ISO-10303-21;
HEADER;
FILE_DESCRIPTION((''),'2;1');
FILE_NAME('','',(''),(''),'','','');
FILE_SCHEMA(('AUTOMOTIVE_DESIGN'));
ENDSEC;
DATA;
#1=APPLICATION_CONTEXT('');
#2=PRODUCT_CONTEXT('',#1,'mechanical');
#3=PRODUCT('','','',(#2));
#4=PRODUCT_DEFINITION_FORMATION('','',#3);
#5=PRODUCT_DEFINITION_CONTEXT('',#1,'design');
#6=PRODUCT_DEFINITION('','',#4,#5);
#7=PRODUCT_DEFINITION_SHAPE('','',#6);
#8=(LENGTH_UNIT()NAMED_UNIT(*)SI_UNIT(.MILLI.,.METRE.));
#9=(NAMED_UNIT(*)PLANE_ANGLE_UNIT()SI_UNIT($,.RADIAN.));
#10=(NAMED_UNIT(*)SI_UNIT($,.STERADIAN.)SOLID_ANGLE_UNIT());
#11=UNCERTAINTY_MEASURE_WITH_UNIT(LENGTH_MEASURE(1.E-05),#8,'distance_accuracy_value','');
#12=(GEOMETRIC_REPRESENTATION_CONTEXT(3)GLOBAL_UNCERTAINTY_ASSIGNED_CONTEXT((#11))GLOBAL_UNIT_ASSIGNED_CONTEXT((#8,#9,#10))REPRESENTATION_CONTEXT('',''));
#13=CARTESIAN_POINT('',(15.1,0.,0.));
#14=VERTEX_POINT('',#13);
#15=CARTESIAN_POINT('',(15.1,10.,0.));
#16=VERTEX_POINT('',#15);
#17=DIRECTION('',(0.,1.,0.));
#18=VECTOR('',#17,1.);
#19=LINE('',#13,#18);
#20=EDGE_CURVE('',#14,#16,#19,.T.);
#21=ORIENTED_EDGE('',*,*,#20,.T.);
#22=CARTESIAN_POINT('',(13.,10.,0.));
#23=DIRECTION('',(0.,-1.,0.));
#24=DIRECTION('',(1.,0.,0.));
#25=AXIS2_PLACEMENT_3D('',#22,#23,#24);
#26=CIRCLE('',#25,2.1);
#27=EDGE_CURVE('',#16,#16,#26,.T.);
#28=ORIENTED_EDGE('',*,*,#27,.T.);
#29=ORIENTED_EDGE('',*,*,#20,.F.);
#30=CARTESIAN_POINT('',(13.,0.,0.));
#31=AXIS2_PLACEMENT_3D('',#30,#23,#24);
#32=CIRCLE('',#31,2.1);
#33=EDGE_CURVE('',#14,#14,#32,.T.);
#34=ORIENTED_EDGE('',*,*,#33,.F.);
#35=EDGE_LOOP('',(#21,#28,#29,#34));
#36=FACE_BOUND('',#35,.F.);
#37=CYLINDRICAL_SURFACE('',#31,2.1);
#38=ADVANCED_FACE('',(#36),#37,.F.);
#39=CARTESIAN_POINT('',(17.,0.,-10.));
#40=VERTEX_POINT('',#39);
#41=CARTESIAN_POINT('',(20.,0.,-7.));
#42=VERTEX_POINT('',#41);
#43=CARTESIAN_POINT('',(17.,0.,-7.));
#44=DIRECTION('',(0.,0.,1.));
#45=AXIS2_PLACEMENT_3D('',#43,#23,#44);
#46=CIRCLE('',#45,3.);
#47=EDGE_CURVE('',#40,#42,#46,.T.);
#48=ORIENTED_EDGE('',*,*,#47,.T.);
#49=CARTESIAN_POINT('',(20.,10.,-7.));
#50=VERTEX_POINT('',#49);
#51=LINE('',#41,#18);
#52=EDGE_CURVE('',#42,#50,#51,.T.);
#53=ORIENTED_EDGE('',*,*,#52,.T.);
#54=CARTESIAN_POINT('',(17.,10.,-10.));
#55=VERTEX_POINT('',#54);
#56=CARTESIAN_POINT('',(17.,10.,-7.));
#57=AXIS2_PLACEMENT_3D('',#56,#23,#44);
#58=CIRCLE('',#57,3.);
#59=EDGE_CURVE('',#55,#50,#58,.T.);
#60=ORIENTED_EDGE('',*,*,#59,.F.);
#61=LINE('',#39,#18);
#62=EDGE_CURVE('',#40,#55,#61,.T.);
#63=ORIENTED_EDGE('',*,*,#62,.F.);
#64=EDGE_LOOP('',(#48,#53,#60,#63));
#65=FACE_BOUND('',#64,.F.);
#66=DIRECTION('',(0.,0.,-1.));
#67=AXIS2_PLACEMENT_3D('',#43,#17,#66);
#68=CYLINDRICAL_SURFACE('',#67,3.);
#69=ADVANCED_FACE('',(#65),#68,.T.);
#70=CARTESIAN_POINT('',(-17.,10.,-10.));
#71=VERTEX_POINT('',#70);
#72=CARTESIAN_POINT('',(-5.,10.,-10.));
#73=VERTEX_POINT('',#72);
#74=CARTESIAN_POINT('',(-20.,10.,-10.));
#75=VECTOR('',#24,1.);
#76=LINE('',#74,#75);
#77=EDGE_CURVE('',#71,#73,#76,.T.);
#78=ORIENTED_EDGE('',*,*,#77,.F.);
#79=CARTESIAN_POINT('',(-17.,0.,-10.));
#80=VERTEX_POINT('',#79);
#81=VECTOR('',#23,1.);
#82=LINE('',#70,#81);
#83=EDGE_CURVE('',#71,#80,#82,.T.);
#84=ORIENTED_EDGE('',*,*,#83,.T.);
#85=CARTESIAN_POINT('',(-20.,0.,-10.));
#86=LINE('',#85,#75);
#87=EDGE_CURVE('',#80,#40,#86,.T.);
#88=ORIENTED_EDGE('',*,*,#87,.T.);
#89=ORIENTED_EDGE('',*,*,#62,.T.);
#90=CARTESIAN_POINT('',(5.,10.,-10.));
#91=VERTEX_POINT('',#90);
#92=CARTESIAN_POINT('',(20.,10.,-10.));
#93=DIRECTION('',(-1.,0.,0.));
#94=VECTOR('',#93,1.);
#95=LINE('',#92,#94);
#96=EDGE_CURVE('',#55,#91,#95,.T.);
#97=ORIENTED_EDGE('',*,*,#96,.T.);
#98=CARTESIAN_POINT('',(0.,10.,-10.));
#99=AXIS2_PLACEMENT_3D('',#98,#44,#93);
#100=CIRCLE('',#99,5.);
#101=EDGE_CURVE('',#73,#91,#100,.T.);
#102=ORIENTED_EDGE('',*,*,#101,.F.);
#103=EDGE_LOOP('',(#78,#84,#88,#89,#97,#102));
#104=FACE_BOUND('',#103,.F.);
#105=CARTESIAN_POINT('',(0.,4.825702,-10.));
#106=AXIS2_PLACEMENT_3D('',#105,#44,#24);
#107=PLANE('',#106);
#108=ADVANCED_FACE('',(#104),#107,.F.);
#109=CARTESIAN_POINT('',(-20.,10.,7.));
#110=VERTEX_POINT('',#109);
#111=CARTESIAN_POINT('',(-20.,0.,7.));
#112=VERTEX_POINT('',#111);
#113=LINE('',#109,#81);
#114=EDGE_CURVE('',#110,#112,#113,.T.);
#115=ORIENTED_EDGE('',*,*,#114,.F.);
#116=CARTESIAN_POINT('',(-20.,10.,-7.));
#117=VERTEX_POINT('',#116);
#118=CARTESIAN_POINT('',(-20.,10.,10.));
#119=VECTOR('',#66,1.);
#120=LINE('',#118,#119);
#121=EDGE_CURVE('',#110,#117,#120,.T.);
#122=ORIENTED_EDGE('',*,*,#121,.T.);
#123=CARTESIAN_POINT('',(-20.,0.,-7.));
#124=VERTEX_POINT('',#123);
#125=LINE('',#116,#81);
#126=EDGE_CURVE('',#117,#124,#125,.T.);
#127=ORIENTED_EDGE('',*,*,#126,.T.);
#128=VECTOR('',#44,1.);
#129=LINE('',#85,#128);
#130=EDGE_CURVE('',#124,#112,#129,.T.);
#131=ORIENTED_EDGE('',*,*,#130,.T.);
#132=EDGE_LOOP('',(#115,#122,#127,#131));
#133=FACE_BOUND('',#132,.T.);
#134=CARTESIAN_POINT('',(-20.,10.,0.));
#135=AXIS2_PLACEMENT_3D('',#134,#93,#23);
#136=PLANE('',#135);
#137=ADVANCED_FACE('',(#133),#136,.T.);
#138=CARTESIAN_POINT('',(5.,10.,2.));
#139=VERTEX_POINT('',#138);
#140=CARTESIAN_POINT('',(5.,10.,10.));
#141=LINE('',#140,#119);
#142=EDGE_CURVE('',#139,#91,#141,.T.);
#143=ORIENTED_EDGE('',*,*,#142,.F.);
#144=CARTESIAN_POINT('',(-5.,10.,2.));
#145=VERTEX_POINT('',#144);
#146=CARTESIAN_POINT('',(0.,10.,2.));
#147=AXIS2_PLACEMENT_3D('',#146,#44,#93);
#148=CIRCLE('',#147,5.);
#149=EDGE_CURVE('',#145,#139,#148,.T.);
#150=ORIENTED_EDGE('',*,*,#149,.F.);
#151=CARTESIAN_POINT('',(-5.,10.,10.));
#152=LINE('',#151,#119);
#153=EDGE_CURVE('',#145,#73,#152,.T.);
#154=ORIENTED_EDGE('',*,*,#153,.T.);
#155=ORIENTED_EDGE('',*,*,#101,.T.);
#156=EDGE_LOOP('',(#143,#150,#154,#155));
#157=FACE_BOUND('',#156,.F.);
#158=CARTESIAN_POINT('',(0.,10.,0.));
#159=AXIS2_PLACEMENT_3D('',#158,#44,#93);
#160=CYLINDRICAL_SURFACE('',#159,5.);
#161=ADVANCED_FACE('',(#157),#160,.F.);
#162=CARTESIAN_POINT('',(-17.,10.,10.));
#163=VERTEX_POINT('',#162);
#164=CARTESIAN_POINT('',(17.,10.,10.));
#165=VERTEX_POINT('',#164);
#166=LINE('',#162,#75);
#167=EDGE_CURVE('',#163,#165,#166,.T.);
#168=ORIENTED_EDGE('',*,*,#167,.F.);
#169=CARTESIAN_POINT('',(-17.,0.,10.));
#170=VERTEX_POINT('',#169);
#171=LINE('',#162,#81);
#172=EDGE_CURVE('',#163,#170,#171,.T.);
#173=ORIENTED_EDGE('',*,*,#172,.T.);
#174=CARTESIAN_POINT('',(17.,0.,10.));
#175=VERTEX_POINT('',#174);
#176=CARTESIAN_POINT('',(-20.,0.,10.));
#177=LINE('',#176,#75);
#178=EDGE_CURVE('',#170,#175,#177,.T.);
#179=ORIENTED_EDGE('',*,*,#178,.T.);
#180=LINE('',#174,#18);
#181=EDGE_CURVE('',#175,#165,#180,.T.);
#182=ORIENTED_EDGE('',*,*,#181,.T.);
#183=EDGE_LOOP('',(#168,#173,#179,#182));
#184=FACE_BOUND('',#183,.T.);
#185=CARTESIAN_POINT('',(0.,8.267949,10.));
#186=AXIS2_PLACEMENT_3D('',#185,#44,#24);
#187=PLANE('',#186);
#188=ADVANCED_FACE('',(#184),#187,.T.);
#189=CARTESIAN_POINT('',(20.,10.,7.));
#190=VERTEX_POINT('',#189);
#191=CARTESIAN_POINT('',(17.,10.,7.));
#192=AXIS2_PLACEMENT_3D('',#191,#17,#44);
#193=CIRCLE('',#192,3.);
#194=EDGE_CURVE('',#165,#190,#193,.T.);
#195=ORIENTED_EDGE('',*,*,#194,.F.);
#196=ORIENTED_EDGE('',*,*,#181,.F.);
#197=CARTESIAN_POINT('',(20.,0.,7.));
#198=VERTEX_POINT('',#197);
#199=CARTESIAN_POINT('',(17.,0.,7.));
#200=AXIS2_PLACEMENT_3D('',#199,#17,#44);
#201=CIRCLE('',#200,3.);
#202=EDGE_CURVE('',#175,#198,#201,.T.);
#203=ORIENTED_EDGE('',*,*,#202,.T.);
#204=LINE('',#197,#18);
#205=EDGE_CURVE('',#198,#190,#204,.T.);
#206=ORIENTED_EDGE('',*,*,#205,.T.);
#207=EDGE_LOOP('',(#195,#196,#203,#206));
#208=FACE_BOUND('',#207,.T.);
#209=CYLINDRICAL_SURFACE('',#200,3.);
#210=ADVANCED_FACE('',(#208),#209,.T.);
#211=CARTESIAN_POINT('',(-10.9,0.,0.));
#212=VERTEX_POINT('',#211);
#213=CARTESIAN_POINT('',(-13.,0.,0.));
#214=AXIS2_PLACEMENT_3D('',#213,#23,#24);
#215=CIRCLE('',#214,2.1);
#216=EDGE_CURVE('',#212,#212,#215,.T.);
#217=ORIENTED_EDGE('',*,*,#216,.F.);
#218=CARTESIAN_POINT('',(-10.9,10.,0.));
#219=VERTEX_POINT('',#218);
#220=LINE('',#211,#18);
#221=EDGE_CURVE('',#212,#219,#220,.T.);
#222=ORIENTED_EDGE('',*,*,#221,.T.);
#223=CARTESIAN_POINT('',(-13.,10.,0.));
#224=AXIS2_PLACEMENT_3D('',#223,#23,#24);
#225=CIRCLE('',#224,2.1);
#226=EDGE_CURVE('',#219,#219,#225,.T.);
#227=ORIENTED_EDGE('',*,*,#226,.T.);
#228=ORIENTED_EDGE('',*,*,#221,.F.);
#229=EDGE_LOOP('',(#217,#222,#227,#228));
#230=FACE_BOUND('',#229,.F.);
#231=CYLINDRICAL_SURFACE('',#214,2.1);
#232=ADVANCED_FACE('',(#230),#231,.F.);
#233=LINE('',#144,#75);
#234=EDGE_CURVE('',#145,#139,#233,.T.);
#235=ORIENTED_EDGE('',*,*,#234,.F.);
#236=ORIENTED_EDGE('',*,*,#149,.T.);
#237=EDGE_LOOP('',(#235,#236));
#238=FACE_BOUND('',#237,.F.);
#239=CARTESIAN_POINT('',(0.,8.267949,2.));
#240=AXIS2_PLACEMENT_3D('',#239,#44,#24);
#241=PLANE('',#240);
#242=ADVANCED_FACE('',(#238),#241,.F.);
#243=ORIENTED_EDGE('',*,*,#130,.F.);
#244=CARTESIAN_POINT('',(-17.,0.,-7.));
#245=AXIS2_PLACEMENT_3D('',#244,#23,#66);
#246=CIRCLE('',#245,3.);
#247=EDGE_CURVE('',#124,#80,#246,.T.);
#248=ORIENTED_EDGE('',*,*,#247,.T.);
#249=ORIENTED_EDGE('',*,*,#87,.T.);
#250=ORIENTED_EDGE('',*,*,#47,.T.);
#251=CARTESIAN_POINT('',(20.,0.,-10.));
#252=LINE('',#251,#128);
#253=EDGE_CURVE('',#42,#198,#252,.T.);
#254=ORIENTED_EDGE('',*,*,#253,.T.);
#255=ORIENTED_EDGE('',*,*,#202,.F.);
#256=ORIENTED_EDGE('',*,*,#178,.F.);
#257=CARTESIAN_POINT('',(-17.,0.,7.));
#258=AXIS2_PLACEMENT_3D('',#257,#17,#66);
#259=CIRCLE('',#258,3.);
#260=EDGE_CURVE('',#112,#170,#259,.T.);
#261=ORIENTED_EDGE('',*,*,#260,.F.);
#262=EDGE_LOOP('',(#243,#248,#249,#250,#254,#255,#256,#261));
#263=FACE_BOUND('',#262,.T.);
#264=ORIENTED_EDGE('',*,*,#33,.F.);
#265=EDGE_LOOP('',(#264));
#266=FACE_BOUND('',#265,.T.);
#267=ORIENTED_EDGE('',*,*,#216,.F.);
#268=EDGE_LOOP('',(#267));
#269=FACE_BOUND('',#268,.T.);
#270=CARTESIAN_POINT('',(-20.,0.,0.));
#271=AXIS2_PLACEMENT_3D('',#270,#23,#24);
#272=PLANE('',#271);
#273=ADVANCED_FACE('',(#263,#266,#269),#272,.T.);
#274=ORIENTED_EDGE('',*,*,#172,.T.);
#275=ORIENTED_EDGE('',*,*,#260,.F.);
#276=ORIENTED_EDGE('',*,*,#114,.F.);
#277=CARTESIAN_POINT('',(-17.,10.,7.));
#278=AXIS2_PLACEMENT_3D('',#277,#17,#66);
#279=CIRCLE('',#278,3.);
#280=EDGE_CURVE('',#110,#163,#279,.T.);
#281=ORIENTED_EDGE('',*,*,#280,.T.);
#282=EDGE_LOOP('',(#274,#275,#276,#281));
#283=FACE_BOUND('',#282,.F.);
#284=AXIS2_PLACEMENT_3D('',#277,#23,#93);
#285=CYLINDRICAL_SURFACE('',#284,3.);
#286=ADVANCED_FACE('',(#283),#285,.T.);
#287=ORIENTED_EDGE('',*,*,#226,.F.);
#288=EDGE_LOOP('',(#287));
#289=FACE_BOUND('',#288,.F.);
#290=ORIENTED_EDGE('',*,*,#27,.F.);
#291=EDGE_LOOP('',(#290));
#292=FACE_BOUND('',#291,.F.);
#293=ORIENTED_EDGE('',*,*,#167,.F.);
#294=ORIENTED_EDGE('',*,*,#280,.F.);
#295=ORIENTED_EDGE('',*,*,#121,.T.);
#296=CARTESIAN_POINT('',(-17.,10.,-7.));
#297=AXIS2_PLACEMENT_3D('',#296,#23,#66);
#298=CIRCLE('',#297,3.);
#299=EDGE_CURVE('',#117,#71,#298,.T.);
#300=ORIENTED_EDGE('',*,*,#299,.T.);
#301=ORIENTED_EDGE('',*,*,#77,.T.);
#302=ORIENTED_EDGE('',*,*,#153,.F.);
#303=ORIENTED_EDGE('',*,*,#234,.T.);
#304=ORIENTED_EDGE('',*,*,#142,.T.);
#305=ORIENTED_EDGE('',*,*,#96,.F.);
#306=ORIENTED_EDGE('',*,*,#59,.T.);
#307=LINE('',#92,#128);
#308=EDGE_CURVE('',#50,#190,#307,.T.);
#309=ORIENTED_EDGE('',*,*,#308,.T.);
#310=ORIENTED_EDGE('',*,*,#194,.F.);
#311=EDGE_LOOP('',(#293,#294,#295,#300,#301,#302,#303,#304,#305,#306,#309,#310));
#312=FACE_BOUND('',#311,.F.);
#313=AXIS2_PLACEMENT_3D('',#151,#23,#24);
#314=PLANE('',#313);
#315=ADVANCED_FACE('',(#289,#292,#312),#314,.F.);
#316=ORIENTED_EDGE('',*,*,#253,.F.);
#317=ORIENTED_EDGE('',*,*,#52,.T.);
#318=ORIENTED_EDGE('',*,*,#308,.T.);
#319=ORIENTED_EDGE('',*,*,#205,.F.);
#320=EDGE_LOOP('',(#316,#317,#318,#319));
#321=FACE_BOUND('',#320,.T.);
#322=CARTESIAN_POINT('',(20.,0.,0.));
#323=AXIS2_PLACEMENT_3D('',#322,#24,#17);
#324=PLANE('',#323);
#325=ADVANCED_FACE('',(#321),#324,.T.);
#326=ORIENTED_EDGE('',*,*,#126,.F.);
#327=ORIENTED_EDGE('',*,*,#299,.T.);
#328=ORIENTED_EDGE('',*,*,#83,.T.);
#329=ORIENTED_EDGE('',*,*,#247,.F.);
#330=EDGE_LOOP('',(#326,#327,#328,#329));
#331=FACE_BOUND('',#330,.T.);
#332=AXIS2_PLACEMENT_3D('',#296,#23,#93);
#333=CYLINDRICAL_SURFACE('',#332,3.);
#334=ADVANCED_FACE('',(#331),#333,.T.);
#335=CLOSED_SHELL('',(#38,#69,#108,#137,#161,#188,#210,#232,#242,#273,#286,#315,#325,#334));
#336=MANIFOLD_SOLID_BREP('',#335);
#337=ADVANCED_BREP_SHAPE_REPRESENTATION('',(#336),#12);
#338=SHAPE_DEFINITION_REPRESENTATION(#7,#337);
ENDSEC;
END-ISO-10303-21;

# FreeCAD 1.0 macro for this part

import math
import FreeCAD as App
import Part
import Sketcher

V = App.Vector
Q = App.Units.Quantity


def edges_at(feature, points):
    """Names of the edges that pass closest to the given points."""
    edges = feature.Shape.Edges
    near = lambda p: min(range(len(edges)), key=lambda i: edges[i].distToShape(Part.Vertex(*p))[0])
    return sorted({f"Edge{near(p) + 1}" for p in points})

doc = App.newDocument("Part")
body = doc.addObject("PartDesign::Body", "Body")

sketch1 = body.newObject("Sketcher::SketchObject", "Sketch")
sketch1.AttachmentSupport = (doc.getObject("XY_Plane"), [""])
sketch1.MapMode = "FlatFace"
sketch1.addGeometry(Part.LineSegment(V(-20, 10, 0), V(-20, 0, 0)), False)
sketch1.addGeometry(Part.LineSegment(V(-20, 0, 0), V(20, 0, 0)), False)
sketch1.addGeometry(Part.LineSegment(V(20, 0, 0), V(20, 10, 0)), False)
sketch1.addGeometry(Part.LineSegment(V(20, 10, 0), V(5, 10, 0)), False)
sketch1.addGeometry(Part.ArcOfCircle(Part.Circle(V(0, 10, 0), V(0, 0, 1), 5), math.radians(180), math.radians(360)), False)
sketch1.addGeometry(Part.LineSegment(V(-5, 10, 0), V(-20, 10, 0)), False)
sketch1.addConstraint(Sketcher.Constraint("Coincident", 0, 2, 1, 1))
sketch1.addConstraint(Sketcher.Constraint("Coincident", 1, 2, 2, 1))
sketch1.addConstraint(Sketcher.Constraint("Coincident", 2, 2, 3, 1))
sketch1.addConstraint(Sketcher.Constraint("Coincident", 3, 2, 4, 2))
sketch1.addConstraint(Sketcher.Constraint("Coincident", 4, 1, 5, 1))
sketch1.addConstraint(Sketcher.Constraint("Coincident", 5, 2, 0, 1))
sketch1.addConstraint(Sketcher.Constraint("Vertical", 0))
sketch1.addConstraint(Sketcher.Constraint("Horizontal", 1))
sketch1.addConstraint(Sketcher.Constraint("Vertical", 2))
sketch1.addConstraint(Sketcher.Constraint("Horizontal", 3))
sketch1.addConstraint(Sketcher.Constraint("Horizontal", 5))
sketch1.addConstraint(Sketcher.Constraint("Symmetric", 0, 2, 1, 2, -1, 1))
sketch1.addConstraint(Sketcher.Constraint("Symmetric", 3, 2, 4, 1, -2))
sketch1.addConstraint(Sketcher.Constraint("Horizontal", 4, 3, 2, 2))
sketch1.addConstraint(Sketcher.Constraint("Radius", 4, Q("5 mm")))
sketch1.addConstraint(Sketcher.Constraint("DistanceX", 1, 1, 1, 2, Q("40 mm")))
sketch1.addConstraint(Sketcher.Constraint("DistanceY", 0, 2, 0, 1, Q("10 mm")))
pad1 = body.newObject("PartDesign::Pad", "Pad")
pad1.Profile = sketch1
pad1.Length = 20
pad1.Midplane = True

sketch2 = body.newObject("Sketcher::SketchObject", "Sketch001")
sketch2.AttachmentSupport = (doc.getObject("XZ_Plane"), [""])
sketch2.MapMode = "FlatFace"
sketch2.addGeometry(Part.Circle(V(-13, 0, 0), V(0, 0, 1), 2.1), False)
sketch2.addGeometry(Part.Circle(V(13, 0, 0), V(0, 0, 1), 2.1), False)
sketch2.addConstraint(Sketcher.Constraint("Equal", 0, 1))
sketch2.addConstraint(Sketcher.Constraint("Symmetric", 0, 3, 1, 3, -1, 1))
sketch2.addConstraint(Sketcher.Constraint("PointOnObject", 0, 3, -1))
sketch2.addConstraint(Sketcher.Constraint("Diameter", 0, Q("4.2 mm")))
sketch2.addConstraint(Sketcher.Constraint("DistanceX", 0, 3, -1, 1, Q("13 mm")))
pocket1 = body.newObject("PartDesign::Pocket", "Pocket")
pocket1.Profile = sketch2
pocket1.Length = 10
doc.recompute()

fillet = body.newObject("PartDesign::Fillet", "Fillet")
fillet.Base = (pocket1, edges_at(pocket1, [
    (-20, 5, -10),
    (20, 5, -10),
    (-20, 5, 10),
    (20, 5, 10),
]))
fillet.Radius = 3

sketch3 = body.newObject("Sketcher::SketchObject", "Sketch002")
sketch3.AttachmentSupport = (doc.getObject("XY_Plane"), [""])
sketch3.MapMode = "FlatFace"
sketch3.AttachmentOffset = App.Placement(V(0, 0, 10), App.Rotation())
sketch3.addGeometry(Part.ArcOfCircle(Part.Circle(V(0, 10, 0), V(0, 0, 1), 5), math.radians(180), math.radians(360)), False)
sketch3.addGeometry(Part.LineSegment(V(5, 10, 0), V(-5, 10, 0)), False)
sketch3.addConstraint(Sketcher.Constraint("Coincident", 0, 1, 1, 2))
sketch3.addConstraint(Sketcher.Constraint("Coincident", 1, 1, 0, 2))
sketch3.addConstraint(Sketcher.Constraint("Horizontal", 1))
sketch3.addConstraint(Sketcher.Constraint("PointOnObject", 0, 3, -2))
sketch3.addConstraint(Sketcher.Constraint("Radius", 0, Q("5 mm")))
sketch3.addConstraint(Sketcher.Constraint("DistanceY", -1, 1, 0, 3, Q("10 mm")))
sketch3.addConstraint(Sketcher.Constraint("DistanceY", -1, 1, 0, 1, Q("10 mm")))
pad2 = body.newObject("PartDesign::Pad", "Pad001")
pad2.Profile = sketch3
pad2.Length = 8
pad2.Reversed = True

doc.recompute()
